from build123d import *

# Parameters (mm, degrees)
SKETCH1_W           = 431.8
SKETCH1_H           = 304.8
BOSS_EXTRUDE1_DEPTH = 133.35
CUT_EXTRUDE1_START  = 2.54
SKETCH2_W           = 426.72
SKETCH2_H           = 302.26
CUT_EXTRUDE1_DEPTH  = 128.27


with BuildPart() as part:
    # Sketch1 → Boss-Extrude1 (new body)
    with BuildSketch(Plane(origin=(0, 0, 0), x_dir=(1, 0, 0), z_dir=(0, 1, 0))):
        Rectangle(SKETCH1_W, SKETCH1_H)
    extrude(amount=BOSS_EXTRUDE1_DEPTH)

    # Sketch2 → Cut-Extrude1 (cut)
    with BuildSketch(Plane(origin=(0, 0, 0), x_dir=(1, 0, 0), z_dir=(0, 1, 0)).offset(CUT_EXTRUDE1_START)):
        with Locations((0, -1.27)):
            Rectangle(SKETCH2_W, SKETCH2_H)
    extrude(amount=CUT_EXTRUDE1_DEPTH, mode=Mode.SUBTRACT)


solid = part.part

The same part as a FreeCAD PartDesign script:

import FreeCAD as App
import Part
import Sketcher
from FreeCAD import Vector
Q = App.Units.Quantity


def add_polygon(sketch, points):
    """Adds a closed chain of lines whose ends are joined by coincident constraints."""
    first, n = sketch.GeometryCount, len(points)
    for a, b in zip(points, points[1:] + points[:1]):
        sketch.addGeometry(Part.LineSegment(App.Vector(*a, 0), App.Vector(*b, 0)), False)
    for i in range(n):
        sketch.addConstraint(Sketcher.Constraint("Coincident", first + i, 2, first + (i + 1) % n, 1))

doc = App.newDocument("Part")
body = doc.addObject("PartDesign::Body", "Body")

# Sketch on XZ plane
sketch1 = body.newObject("Sketcher::SketchObject", "Sketch")
sketch1.AttachmentSupport = (doc.getObject("XZ_Plane"), [""])
sketch1.MapMode = "FlatFace"
add_polygon(sketch1, [(-216, -152), (-216, 152), (216, 152), (216, -152)])  # lines 0-3
sketch1.addConstraint(Sketcher.Constraint("Vertical", 0))
sketch1.addConstraint(Sketcher.Constraint("Horizontal", 1))
sketch1.addConstraint(Sketcher.Constraint("Vertical", 2))
sketch1.addConstraint(Sketcher.Constraint("Horizontal", 3))
sketch1.addConstraint(Sketcher.Constraint("Symmetric", 0, 2, 2, 2, -1, 1))
sketch1.addConstraint(Sketcher.Constraint("DistanceX", 1, 1, 1, 2, Q("17 in")))
sketch1.addConstraint(Sketcher.Constraint("DistanceY", 0, 1, 0, 2, Q("12 in")))
pad1 = body.newObject("PartDesign::Pad", "Pad")
pad1.Profile = sketch1
pad1.Length = Q("5.25 in")
pad1.Reversed = True

# Sketch on XZ plane
sketch2 = body.newObject("Sketcher::SketchObject", "Sketch001")
sketch2.AttachmentSupport = (doc.getObject("XZ_Plane"), [""])
sketch2.MapMode = "FlatFace"
sketch2.AttachmentOffset = App.Placement(Vector(0, 0, -0.1 * 25.4), App.Rotation())
add_polygon(sketch2, [(-213, -150), (-213, 152), (213, 152), (213, -150)])  # lines 0-3
sketch2.addConstraint(Sketcher.Constraint("Vertical", 0))
sketch2.addConstraint(Sketcher.Constraint("Horizontal", 1))
sketch2.addConstraint(Sketcher.Constraint("Vertical", 2))
sketch2.addConstraint(Sketcher.Constraint("Horizontal", 3))
sketch2.addConstraint(Sketcher.Constraint("DistanceX", 1, 1, 1, 2, Q("16.8 in")))
sketch2.addConstraint(Sketcher.Constraint("DistanceY", 0, 1, 0, 2, Q("11.9 in")))
sketch2.addConstraint(Sketcher.Constraint("DistanceY", -1, 1, 0, 2, Q("6 in")))
sketch2.addConstraint(Sketcher.Constraint("DistanceX", 0, 2, -1, 1, Q("8.4 in")))
pocket1 = body.newObject("PartDesign::Pocket", "Pocket")
pocket1.Profile = sketch2
pocket1.Length = Q("5.05 in")

doc.recompute()
